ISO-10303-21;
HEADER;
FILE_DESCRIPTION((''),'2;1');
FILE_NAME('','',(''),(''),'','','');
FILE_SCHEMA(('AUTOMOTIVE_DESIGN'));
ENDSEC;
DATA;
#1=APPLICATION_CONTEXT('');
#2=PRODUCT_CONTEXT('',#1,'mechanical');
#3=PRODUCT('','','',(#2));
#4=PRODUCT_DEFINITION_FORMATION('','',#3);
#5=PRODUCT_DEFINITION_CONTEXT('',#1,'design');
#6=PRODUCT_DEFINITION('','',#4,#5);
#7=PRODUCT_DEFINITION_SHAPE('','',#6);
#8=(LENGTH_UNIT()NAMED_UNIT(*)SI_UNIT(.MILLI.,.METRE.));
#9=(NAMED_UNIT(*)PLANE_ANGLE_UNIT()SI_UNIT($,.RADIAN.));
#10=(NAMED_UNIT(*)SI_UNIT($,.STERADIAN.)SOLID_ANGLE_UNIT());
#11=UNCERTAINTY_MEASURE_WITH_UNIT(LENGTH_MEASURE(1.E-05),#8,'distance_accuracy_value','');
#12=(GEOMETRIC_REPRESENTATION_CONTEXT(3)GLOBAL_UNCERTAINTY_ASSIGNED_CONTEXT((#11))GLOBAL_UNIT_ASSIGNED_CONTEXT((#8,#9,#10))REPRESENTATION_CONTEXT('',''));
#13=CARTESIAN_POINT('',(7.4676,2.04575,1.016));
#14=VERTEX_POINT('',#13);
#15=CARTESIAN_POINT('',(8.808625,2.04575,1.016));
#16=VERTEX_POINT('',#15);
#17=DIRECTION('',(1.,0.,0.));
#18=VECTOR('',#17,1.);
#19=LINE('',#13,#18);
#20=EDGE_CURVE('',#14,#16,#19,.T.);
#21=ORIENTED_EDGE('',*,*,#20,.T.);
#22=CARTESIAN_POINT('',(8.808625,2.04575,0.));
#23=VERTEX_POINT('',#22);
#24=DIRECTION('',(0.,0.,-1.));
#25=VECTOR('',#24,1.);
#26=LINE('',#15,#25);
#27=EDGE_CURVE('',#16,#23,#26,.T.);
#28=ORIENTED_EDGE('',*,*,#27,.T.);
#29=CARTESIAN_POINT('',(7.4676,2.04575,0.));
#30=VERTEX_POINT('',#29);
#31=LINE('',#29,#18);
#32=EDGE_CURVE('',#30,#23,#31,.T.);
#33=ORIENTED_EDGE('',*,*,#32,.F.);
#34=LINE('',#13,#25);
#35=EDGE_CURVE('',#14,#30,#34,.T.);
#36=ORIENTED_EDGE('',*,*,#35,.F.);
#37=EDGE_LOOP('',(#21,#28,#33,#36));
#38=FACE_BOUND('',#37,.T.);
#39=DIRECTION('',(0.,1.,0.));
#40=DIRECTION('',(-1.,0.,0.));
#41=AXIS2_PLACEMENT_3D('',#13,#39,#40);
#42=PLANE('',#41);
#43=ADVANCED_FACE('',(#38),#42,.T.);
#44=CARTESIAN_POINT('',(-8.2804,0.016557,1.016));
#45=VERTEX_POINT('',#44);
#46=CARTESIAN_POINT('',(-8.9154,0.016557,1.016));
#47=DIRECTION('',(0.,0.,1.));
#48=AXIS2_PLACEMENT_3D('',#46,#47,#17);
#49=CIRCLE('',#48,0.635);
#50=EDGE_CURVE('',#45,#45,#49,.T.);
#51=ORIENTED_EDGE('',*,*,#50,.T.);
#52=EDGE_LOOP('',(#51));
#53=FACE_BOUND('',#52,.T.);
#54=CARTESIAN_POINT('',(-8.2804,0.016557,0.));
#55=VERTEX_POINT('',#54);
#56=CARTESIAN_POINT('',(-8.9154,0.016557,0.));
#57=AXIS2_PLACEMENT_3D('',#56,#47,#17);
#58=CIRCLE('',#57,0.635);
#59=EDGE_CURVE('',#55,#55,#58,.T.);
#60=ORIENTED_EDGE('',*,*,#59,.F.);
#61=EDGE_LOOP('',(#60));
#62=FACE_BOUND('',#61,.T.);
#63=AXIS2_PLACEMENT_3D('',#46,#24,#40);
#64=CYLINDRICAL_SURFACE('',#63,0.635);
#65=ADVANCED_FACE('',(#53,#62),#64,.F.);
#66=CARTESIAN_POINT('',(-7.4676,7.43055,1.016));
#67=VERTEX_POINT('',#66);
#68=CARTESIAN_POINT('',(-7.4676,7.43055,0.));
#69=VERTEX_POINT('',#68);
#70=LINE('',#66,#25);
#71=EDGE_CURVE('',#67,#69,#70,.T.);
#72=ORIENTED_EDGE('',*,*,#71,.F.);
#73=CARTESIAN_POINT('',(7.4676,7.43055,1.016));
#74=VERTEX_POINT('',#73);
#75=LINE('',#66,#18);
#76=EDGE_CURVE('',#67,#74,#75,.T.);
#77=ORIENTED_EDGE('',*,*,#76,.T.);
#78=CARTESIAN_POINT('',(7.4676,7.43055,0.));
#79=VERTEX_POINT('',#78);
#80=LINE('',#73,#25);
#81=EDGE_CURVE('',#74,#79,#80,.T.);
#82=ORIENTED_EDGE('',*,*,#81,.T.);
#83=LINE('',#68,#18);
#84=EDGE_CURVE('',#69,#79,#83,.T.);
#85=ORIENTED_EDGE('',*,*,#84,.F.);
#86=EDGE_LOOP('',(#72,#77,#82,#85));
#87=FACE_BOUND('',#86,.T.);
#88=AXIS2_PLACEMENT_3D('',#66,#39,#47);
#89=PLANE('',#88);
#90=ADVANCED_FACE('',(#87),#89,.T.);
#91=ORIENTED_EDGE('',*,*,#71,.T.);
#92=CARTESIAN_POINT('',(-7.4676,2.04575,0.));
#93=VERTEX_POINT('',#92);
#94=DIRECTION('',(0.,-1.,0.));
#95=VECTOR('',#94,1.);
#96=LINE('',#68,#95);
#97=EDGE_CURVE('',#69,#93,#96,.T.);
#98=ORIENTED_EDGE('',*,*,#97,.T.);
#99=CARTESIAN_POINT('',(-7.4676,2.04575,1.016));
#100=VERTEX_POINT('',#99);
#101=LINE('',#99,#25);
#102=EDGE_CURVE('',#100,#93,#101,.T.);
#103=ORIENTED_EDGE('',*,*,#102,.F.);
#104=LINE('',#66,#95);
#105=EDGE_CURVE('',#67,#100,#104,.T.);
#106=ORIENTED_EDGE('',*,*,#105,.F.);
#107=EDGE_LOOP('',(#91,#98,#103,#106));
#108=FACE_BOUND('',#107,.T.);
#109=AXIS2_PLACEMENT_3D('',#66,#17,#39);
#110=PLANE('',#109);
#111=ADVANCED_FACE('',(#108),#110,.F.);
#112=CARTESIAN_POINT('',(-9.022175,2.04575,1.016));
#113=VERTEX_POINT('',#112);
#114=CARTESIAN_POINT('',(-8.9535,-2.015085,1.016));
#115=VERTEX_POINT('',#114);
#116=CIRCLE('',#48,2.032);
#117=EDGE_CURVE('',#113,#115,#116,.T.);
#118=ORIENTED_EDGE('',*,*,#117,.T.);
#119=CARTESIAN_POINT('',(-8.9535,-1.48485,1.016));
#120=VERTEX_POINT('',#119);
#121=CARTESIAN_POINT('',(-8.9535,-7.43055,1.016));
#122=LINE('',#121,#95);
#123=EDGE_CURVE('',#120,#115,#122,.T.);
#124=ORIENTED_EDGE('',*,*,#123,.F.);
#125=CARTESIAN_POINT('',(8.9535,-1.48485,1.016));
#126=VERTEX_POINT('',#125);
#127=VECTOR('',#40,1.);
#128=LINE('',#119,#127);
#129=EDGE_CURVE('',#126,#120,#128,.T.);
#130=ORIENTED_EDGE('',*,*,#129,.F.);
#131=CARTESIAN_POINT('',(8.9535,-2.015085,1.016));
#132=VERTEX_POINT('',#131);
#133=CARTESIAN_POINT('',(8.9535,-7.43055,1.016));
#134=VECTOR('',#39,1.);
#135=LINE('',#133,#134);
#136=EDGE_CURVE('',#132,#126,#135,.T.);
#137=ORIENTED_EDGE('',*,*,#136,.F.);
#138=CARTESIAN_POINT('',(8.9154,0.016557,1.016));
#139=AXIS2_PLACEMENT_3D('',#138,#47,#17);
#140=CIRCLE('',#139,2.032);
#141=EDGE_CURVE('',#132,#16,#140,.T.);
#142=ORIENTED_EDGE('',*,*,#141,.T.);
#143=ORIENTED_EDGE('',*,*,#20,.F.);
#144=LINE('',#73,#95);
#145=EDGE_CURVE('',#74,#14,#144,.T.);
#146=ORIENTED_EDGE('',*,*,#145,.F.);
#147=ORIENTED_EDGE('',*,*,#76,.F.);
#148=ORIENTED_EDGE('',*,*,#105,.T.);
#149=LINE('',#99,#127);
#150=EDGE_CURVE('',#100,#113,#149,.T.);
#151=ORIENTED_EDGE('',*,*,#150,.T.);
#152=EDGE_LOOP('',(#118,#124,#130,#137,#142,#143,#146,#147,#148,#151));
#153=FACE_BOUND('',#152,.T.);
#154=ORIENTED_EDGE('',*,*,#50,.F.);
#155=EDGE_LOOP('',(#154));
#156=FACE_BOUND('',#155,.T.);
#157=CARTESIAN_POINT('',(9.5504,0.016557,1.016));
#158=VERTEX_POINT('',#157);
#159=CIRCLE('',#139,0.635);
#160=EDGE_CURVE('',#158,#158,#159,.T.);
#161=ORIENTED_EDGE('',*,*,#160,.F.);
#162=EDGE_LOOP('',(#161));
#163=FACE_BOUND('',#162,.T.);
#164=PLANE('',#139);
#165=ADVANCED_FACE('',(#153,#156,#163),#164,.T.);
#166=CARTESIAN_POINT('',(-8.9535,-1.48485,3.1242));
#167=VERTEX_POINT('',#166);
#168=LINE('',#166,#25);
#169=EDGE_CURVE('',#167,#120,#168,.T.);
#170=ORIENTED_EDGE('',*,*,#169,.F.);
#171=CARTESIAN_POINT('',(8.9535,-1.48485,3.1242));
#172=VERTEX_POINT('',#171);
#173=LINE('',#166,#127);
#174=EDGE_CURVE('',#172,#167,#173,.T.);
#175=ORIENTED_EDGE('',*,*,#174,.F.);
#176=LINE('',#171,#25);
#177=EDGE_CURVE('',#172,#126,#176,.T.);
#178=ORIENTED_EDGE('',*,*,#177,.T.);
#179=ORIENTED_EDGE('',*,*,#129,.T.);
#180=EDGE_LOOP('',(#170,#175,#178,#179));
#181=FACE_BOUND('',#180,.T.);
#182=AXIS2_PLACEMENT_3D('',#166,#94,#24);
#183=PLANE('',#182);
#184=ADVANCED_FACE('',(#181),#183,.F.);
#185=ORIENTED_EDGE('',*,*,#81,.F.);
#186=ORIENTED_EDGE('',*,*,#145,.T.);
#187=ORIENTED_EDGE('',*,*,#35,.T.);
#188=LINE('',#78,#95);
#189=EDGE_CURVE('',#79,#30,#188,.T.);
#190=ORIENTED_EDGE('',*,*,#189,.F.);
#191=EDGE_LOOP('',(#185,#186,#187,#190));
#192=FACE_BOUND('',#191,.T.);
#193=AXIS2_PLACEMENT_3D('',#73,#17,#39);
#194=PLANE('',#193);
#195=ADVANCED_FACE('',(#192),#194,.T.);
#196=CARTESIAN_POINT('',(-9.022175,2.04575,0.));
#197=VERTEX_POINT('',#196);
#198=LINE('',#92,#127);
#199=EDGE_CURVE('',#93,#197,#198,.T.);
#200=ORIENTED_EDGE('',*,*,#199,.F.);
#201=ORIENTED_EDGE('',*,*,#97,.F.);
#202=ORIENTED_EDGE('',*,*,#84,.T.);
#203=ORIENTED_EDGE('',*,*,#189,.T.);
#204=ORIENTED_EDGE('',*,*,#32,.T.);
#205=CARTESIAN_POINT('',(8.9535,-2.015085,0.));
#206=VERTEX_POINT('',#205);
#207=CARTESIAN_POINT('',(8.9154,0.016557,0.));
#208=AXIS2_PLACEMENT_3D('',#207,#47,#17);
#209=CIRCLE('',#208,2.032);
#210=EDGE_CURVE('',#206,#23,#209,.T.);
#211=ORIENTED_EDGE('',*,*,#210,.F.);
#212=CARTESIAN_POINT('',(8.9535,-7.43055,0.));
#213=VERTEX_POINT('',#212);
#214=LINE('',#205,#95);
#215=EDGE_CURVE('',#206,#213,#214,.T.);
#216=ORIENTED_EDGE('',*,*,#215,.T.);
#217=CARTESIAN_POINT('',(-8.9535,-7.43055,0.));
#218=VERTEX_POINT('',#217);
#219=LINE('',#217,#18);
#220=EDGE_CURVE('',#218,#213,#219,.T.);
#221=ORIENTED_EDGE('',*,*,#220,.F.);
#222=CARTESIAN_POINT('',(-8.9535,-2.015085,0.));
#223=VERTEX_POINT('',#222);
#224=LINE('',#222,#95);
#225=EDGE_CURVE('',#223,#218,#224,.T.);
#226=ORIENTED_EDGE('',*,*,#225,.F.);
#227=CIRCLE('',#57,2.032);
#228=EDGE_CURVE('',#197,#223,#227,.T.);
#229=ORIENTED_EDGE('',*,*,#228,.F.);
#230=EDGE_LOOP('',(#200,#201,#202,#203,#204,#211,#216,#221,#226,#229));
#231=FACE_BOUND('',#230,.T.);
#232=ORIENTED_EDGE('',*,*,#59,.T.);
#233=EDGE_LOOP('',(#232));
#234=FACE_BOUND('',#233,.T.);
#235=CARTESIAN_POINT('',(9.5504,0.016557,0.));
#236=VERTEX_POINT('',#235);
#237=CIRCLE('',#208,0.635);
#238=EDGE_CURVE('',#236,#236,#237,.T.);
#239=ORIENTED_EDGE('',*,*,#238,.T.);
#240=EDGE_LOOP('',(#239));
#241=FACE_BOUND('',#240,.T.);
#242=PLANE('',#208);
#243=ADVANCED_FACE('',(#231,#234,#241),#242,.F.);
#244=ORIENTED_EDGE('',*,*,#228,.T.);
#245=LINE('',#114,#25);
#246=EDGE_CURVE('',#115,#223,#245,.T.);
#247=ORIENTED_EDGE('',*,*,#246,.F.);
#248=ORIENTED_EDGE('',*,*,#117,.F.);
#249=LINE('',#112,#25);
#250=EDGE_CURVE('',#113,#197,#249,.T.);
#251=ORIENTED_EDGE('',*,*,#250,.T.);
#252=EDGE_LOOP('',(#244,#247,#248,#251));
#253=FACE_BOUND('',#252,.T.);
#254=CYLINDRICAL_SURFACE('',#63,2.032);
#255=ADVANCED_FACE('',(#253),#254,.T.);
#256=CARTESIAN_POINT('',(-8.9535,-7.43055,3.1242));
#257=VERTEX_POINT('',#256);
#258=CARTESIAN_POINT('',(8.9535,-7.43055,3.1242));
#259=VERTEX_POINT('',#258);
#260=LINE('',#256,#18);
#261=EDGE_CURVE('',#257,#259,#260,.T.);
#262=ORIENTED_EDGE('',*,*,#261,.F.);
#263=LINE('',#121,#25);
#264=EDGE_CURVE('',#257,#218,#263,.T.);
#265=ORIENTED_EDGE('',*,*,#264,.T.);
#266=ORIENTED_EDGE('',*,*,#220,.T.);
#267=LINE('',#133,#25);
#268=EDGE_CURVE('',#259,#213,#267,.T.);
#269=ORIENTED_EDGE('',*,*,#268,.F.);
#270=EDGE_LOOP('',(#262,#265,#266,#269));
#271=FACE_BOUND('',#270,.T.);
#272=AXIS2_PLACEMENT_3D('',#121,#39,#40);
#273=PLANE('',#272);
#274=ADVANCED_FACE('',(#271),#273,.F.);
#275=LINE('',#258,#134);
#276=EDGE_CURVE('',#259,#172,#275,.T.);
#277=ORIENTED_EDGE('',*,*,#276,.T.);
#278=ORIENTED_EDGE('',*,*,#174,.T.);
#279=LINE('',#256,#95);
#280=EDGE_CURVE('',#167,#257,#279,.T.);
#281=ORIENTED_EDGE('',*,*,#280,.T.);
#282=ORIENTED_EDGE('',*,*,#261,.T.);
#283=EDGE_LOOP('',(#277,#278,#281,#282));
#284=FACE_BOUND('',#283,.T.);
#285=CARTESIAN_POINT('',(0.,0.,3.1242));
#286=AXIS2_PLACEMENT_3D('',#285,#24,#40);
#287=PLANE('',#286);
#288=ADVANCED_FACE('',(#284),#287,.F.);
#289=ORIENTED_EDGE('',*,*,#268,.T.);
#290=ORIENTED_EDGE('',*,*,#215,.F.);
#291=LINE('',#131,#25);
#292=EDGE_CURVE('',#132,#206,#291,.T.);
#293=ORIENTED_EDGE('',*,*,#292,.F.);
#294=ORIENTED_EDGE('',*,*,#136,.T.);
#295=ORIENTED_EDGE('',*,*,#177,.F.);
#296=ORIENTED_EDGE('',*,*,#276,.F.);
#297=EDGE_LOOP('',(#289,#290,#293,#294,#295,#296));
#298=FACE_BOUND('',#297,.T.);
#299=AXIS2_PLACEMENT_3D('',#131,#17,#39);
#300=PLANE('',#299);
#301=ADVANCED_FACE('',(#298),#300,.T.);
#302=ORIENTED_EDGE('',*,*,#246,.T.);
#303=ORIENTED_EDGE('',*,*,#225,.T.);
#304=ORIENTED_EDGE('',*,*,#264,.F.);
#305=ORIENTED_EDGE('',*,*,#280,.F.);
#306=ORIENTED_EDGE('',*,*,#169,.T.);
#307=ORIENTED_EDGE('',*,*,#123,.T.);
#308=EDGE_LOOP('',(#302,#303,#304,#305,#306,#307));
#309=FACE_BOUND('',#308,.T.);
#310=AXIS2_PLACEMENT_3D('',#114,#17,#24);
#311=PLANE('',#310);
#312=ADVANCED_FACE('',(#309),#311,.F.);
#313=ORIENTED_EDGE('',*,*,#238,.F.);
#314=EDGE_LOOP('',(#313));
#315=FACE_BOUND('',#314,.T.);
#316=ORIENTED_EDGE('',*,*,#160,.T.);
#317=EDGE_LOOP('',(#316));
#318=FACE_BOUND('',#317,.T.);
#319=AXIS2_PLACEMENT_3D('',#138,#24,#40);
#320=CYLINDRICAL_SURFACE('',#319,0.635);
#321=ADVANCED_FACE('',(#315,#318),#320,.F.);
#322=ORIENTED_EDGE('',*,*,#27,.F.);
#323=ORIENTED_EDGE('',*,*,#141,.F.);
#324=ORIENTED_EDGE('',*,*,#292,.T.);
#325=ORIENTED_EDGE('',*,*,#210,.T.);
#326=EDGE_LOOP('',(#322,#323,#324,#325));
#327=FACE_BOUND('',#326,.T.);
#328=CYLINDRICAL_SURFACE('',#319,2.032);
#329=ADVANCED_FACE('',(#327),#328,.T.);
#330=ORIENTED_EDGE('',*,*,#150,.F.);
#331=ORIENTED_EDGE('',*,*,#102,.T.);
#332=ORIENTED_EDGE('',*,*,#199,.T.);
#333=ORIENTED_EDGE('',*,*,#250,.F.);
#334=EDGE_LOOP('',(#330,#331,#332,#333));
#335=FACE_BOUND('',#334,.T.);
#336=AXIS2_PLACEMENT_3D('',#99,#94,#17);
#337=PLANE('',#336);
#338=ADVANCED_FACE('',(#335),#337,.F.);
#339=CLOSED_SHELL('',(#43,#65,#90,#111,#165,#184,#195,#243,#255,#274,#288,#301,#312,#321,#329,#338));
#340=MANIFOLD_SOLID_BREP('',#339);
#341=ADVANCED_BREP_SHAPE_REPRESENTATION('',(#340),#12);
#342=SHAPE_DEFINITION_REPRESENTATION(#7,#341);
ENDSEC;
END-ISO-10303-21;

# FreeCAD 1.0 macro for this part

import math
import FreeCAD as App
import Part
import Sketcher

V = App.Vector
Q = App.Units.Quantity

doc = App.newDocument("Part")
body = doc.addObject("PartDesign::Body", "Body")

# Sketch on XY plane
sketch1 = body.newObject("Sketcher::SketchObject", "Sketch")
sketch1.AttachmentSupport = (doc.getObject("XY_Plane"), [""])
sketch1.MapMode = "FlatFace"
sketch1.addGeometry(Part.LineSegment(V(7.5, 7.4, 0), V(-7.5, 7.4, 0)), False)
sketch1.addGeometry(Part.LineSegment(V(-7.5, 7.4, 0), V(-7.5, 2, 0)), False)
sketch1.addGeometry(Part.LineSegment(V(-7.5, 2, 0), V(-9, 2, 0)), False)
sketch1.addGeometry(Part.ArcOfCircle(Part.Circle(V(-8.9, 0, 0), V(0, 0, 1), 2), math.radians(93), math.radians(269)), False)
sketch1.addGeometry(Part.LineSegment(V(-9, -2, 0), V(-9, -7.4, 0)), False)
sketch1.addGeometry(Part.LineSegment(V(-9, -7.4, 0), V(9, -7.4, 0)), False)
sketch1.addGeometry(Part.LineSegment(V(9, -7.4, 0), V(9, -2, 0)), False)
sketch1.addGeometry(Part.ArcOfCircle(Part.Circle(V(8.9, 0, 0), V(0, 0, 1), 2), math.radians(-89), math.radians(93)), False)
sketch1.addGeometry(Part.LineSegment(V(8.8, 2, 0), V(7.5, 2, 0)), False)
sketch1.addGeometry(Part.LineSegment(V(7.5, 2, 0), V(7.5, 7.4, 0)), False)
sketch1.addGeometry(Part.Circle(V(8.9, 0, 0), V(0, 0, 1), 0.6), False)
sketch1.addGeometry(Part.Circle(V(-8.9, 0, 0), V(0, 0, 1), 0.6), False)
sketch1.addConstraint(Sketcher.Constraint("Coincident", 0, 2, 1, 1))
sketch1.addConstraint(Sketcher.Constraint("Coincident", 1, 2, 2, 1))
sketch1.addConstraint(Sketcher.Constraint("Coincident", 2, 2, 3, 1))
sketch1.addConstraint(Sketcher.Constraint("Coincident", 3, 2, 4, 1))
sketch1.addConstraint(Sketcher.Constraint("Coincident", 4, 2, 5, 1))
sketch1.addConstraint(Sketcher.Constraint("Coincident", 5, 2, 6, 1))
sketch1.addConstraint(Sketcher.Constraint("Coincident", 6, 2, 7, 1))
sketch1.addConstraint(Sketcher.Constraint("Coincident", 7, 2, 8, 1))
sketch1.addConstraint(Sketcher.Constraint("Coincident", 8, 2, 9, 1))
sketch1.addConstraint(Sketcher.Constraint("Coincident", 9, 2, 0, 1))
sketch1.addConstraint(Sketcher.Constraint("Horizontal", 0))
sketch1.addConstraint(Sketcher.Constraint("Vertical", 1))
sketch1.addConstraint(Sketcher.Constraint("Horizontal", 2))
sketch1.addConstraint(Sketcher.Constraint("Vertical", 4))
sketch1.addConstraint(Sketcher.Constraint("Horizontal", 5))
sketch1.addConstraint(Sketcher.Constraint("Vertical", 6))
sketch1.addConstraint(Sketcher.Constraint("Horizontal", 8))
sketch1.addConstraint(Sketcher.Constraint("Vertical", 9))
sketch1.addConstraint(Sketcher.Constraint("Coincident", 10, 3, 7, 3))
sketch1.addConstraint(Sketcher.Constraint("Coincident", 11, 3, 3, 3))
sketch1.addConstraint(Sketcher.Constraint("Equal", 3, 7))
sketch1.addConstraint(Sketcher.Constraint("Equal", 10, 11))
sketch1.addConstraint(Sketcher.Constraint("Symmetric", 3, 3, 7, 3, -2))
sketch1.addConstraint(Sketcher.Constraint("Symmetric", 1, 2, 8, 2, -2))
sketch1.addConstraint(Sketcher.Constraint("Horizontal", 3, 2, 6, 2))
sketch1.addConstraint(Sketcher.Constraint("Diameter", 10, Q("0.05 in")))
sketch1.addConstraint(Sketcher.Constraint("Radius", 3, Q("0.08 in")))
sketch1.addConstraint(Sketcher.Constraint("DistanceX", 0, 2, 0, 1, Q("0.588 in")))
sketch1.addConstraint(Sketcher.Constraint("DistanceX", 5, 1, 5, 2, Q("0.705 in")))
sketch1.addConstraint(Sketcher.Constraint("DistanceY", 1, 2, 1, 1, Q("0.212 in")))
sketch1.addConstraint(Sketcher.Constraint("DistanceX", 3, 3, -1, 1, Q("0.351 in")))
sketch1.addConstraint(Sketcher.Constraint("DistanceY", 4, 2, 2, 2, Q("9.4763 mm")))
sketch1.addConstraint(Sketcher.Constraint("DistanceX", 2, 2, 2, 1, Q("1.554575 mm")))
sketch1.addConstraint(Sketcher.Constraint("DistanceY", -1, 1, 0, 2, Q("7.43055 mm")))
pad1 = body.newObject("PartDesign::Pad", "Pad")
pad1.Profile = sketch1
pad1.Length = Q("0.04 in")

# Sketch on XY plane
sketch2 = body.newObject("Sketcher::SketchObject", "Sketch001")
sketch2.AttachmentSupport = (doc.getObject("XY_Plane"), [""])
sketch2.MapMode = "FlatFace"
sketch2.AttachmentOffset = App.Placement(V(0, 0, 0.04 * 25.4), App.Rotation())
sketch2.addGeometry(Part.LineSegment(V(-9, -1, 0), V(-9, -7, 0)), False)
sketch2.addGeometry(Part.LineSegment(V(-9, -7, 0), V(9, -7, 0)), False)
sketch2.addGeometry(Part.LineSegment(V(9, -7, 0), V(9, -1, 0)), False)
sketch2.addGeometry(Part.LineSegment(V(9, -1, 0), V(-9, -1, 0)), False)
sketch2.addConstraint(Sketcher.Constraint("Coincident", 0, 2, 1, 1))
sketch2.addConstraint(Sketcher.Constraint("Coincident", 1, 2, 2, 1))
sketch2.addConstraint(Sketcher.Constraint("Coincident", 2, 2, 3, 1))
sketch2.addConstraint(Sketcher.Constraint("Coincident", 3, 2, 0, 1))
sketch2.addConstraint(Sketcher.Constraint("Vertical", 0))
sketch2.addConstraint(Sketcher.Constraint("Horizontal", 1))
sketch2.addConstraint(Sketcher.Constraint("Vertical", 2))
sketch2.addConstraint(Sketcher.Constraint("Horizontal", 3))
sketch2.addConstraint(Sketcher.Constraint("DistanceX", 1, 1, 1, 2, Q("0.705 in")))
sketch2.addConstraint(Sketcher.Constraint("DistanceY", 0, 2, 0, 1, Q("5.9457 mm")))
sketch2.addConstraint(Sketcher.Constraint("DistanceX", 0, 2, -1, 1, Q("0.3525 in")))
sketch2.addConstraint(Sketcher.Constraint("DistanceY", 0, 2, -1, 1, Q("7.43055 mm")))
pad2 = body.newObject("PartDesign::Pad", "Pad001")
pad2.Profile = sketch2
pad2.Length = Q("0.083 in")

doc.recompute()
